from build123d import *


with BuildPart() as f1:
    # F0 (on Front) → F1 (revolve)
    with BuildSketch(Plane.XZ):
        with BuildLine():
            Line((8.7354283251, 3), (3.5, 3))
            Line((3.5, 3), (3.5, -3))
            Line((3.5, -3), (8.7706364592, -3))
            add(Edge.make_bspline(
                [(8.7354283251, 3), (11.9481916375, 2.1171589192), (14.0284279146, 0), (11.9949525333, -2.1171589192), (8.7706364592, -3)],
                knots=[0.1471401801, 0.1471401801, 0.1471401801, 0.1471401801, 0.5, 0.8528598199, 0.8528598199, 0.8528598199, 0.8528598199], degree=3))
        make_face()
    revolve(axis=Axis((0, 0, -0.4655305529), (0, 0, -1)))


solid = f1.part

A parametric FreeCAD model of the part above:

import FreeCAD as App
import Part
import Sketcher

V = App.Vector
Q = App.Units.Quantity

doc = App.newDocument("Part")
body = doc.addObject("PartDesign::Body", "Body")

sketch1 = body.newObject("Sketcher::SketchObject", "Sketch")
sketch1.AttachmentSupport = (doc.getObject("XZ_Plane"), [""])
sketch1.MapMode = "FlatFace"
sketch1.addGeometry([
    Part.LineSegment(V(8.735428, 3, 0), V(3.5, 3, 0)),
    Part.LineSegment(V(3.5, 3, 0), V(3.5, -3, 0)),
    Part.LineSegment(V(3.5, -3, 0), V(8.770636, -3, 0)),
    Part.BSplineCurve([V(8.735428, 3, 0), V(11.948192, 2.117159, 0), V(14.028428, 0, 0), V(11.994953, -2.117159, 0), V(8.770636, -3, 0)], [4, 1, 4], [0.14714018, 0.5, 0.85285982], False, 3, [1, 1, 1, 1, 1], False),
], False)
sketch1.addConstraint([
    Sketcher.Constraint("Block", 3),
    Sketcher.Constraint("Coincident", 0, 2, 1, 1),
    Sketcher.Constraint("Coincident", 1, 2, 2, 1),
    Sketcher.Constraint("Coincident", 2, 2, 3, 2),
    Sketcher.Constraint("Coincident", 3, 1, 0, 1),
    Sketcher.Constraint("Horizontal", 0),
    Sketcher.Constraint("Vertical", 1),
    Sketcher.Constraint("Horizontal", 2),
    Sketcher.Constraint("DistanceX", -1, 1, 0, 2, Q("3.5 mm")),
])
revolution = body.newObject("PartDesign::Revolution", "Revolution")
revolution.Profile = sketch1
revolution.ReferenceAxis = (sketch1, ["V_Axis"])
revolution.Angle = 360

doc.recompute()
